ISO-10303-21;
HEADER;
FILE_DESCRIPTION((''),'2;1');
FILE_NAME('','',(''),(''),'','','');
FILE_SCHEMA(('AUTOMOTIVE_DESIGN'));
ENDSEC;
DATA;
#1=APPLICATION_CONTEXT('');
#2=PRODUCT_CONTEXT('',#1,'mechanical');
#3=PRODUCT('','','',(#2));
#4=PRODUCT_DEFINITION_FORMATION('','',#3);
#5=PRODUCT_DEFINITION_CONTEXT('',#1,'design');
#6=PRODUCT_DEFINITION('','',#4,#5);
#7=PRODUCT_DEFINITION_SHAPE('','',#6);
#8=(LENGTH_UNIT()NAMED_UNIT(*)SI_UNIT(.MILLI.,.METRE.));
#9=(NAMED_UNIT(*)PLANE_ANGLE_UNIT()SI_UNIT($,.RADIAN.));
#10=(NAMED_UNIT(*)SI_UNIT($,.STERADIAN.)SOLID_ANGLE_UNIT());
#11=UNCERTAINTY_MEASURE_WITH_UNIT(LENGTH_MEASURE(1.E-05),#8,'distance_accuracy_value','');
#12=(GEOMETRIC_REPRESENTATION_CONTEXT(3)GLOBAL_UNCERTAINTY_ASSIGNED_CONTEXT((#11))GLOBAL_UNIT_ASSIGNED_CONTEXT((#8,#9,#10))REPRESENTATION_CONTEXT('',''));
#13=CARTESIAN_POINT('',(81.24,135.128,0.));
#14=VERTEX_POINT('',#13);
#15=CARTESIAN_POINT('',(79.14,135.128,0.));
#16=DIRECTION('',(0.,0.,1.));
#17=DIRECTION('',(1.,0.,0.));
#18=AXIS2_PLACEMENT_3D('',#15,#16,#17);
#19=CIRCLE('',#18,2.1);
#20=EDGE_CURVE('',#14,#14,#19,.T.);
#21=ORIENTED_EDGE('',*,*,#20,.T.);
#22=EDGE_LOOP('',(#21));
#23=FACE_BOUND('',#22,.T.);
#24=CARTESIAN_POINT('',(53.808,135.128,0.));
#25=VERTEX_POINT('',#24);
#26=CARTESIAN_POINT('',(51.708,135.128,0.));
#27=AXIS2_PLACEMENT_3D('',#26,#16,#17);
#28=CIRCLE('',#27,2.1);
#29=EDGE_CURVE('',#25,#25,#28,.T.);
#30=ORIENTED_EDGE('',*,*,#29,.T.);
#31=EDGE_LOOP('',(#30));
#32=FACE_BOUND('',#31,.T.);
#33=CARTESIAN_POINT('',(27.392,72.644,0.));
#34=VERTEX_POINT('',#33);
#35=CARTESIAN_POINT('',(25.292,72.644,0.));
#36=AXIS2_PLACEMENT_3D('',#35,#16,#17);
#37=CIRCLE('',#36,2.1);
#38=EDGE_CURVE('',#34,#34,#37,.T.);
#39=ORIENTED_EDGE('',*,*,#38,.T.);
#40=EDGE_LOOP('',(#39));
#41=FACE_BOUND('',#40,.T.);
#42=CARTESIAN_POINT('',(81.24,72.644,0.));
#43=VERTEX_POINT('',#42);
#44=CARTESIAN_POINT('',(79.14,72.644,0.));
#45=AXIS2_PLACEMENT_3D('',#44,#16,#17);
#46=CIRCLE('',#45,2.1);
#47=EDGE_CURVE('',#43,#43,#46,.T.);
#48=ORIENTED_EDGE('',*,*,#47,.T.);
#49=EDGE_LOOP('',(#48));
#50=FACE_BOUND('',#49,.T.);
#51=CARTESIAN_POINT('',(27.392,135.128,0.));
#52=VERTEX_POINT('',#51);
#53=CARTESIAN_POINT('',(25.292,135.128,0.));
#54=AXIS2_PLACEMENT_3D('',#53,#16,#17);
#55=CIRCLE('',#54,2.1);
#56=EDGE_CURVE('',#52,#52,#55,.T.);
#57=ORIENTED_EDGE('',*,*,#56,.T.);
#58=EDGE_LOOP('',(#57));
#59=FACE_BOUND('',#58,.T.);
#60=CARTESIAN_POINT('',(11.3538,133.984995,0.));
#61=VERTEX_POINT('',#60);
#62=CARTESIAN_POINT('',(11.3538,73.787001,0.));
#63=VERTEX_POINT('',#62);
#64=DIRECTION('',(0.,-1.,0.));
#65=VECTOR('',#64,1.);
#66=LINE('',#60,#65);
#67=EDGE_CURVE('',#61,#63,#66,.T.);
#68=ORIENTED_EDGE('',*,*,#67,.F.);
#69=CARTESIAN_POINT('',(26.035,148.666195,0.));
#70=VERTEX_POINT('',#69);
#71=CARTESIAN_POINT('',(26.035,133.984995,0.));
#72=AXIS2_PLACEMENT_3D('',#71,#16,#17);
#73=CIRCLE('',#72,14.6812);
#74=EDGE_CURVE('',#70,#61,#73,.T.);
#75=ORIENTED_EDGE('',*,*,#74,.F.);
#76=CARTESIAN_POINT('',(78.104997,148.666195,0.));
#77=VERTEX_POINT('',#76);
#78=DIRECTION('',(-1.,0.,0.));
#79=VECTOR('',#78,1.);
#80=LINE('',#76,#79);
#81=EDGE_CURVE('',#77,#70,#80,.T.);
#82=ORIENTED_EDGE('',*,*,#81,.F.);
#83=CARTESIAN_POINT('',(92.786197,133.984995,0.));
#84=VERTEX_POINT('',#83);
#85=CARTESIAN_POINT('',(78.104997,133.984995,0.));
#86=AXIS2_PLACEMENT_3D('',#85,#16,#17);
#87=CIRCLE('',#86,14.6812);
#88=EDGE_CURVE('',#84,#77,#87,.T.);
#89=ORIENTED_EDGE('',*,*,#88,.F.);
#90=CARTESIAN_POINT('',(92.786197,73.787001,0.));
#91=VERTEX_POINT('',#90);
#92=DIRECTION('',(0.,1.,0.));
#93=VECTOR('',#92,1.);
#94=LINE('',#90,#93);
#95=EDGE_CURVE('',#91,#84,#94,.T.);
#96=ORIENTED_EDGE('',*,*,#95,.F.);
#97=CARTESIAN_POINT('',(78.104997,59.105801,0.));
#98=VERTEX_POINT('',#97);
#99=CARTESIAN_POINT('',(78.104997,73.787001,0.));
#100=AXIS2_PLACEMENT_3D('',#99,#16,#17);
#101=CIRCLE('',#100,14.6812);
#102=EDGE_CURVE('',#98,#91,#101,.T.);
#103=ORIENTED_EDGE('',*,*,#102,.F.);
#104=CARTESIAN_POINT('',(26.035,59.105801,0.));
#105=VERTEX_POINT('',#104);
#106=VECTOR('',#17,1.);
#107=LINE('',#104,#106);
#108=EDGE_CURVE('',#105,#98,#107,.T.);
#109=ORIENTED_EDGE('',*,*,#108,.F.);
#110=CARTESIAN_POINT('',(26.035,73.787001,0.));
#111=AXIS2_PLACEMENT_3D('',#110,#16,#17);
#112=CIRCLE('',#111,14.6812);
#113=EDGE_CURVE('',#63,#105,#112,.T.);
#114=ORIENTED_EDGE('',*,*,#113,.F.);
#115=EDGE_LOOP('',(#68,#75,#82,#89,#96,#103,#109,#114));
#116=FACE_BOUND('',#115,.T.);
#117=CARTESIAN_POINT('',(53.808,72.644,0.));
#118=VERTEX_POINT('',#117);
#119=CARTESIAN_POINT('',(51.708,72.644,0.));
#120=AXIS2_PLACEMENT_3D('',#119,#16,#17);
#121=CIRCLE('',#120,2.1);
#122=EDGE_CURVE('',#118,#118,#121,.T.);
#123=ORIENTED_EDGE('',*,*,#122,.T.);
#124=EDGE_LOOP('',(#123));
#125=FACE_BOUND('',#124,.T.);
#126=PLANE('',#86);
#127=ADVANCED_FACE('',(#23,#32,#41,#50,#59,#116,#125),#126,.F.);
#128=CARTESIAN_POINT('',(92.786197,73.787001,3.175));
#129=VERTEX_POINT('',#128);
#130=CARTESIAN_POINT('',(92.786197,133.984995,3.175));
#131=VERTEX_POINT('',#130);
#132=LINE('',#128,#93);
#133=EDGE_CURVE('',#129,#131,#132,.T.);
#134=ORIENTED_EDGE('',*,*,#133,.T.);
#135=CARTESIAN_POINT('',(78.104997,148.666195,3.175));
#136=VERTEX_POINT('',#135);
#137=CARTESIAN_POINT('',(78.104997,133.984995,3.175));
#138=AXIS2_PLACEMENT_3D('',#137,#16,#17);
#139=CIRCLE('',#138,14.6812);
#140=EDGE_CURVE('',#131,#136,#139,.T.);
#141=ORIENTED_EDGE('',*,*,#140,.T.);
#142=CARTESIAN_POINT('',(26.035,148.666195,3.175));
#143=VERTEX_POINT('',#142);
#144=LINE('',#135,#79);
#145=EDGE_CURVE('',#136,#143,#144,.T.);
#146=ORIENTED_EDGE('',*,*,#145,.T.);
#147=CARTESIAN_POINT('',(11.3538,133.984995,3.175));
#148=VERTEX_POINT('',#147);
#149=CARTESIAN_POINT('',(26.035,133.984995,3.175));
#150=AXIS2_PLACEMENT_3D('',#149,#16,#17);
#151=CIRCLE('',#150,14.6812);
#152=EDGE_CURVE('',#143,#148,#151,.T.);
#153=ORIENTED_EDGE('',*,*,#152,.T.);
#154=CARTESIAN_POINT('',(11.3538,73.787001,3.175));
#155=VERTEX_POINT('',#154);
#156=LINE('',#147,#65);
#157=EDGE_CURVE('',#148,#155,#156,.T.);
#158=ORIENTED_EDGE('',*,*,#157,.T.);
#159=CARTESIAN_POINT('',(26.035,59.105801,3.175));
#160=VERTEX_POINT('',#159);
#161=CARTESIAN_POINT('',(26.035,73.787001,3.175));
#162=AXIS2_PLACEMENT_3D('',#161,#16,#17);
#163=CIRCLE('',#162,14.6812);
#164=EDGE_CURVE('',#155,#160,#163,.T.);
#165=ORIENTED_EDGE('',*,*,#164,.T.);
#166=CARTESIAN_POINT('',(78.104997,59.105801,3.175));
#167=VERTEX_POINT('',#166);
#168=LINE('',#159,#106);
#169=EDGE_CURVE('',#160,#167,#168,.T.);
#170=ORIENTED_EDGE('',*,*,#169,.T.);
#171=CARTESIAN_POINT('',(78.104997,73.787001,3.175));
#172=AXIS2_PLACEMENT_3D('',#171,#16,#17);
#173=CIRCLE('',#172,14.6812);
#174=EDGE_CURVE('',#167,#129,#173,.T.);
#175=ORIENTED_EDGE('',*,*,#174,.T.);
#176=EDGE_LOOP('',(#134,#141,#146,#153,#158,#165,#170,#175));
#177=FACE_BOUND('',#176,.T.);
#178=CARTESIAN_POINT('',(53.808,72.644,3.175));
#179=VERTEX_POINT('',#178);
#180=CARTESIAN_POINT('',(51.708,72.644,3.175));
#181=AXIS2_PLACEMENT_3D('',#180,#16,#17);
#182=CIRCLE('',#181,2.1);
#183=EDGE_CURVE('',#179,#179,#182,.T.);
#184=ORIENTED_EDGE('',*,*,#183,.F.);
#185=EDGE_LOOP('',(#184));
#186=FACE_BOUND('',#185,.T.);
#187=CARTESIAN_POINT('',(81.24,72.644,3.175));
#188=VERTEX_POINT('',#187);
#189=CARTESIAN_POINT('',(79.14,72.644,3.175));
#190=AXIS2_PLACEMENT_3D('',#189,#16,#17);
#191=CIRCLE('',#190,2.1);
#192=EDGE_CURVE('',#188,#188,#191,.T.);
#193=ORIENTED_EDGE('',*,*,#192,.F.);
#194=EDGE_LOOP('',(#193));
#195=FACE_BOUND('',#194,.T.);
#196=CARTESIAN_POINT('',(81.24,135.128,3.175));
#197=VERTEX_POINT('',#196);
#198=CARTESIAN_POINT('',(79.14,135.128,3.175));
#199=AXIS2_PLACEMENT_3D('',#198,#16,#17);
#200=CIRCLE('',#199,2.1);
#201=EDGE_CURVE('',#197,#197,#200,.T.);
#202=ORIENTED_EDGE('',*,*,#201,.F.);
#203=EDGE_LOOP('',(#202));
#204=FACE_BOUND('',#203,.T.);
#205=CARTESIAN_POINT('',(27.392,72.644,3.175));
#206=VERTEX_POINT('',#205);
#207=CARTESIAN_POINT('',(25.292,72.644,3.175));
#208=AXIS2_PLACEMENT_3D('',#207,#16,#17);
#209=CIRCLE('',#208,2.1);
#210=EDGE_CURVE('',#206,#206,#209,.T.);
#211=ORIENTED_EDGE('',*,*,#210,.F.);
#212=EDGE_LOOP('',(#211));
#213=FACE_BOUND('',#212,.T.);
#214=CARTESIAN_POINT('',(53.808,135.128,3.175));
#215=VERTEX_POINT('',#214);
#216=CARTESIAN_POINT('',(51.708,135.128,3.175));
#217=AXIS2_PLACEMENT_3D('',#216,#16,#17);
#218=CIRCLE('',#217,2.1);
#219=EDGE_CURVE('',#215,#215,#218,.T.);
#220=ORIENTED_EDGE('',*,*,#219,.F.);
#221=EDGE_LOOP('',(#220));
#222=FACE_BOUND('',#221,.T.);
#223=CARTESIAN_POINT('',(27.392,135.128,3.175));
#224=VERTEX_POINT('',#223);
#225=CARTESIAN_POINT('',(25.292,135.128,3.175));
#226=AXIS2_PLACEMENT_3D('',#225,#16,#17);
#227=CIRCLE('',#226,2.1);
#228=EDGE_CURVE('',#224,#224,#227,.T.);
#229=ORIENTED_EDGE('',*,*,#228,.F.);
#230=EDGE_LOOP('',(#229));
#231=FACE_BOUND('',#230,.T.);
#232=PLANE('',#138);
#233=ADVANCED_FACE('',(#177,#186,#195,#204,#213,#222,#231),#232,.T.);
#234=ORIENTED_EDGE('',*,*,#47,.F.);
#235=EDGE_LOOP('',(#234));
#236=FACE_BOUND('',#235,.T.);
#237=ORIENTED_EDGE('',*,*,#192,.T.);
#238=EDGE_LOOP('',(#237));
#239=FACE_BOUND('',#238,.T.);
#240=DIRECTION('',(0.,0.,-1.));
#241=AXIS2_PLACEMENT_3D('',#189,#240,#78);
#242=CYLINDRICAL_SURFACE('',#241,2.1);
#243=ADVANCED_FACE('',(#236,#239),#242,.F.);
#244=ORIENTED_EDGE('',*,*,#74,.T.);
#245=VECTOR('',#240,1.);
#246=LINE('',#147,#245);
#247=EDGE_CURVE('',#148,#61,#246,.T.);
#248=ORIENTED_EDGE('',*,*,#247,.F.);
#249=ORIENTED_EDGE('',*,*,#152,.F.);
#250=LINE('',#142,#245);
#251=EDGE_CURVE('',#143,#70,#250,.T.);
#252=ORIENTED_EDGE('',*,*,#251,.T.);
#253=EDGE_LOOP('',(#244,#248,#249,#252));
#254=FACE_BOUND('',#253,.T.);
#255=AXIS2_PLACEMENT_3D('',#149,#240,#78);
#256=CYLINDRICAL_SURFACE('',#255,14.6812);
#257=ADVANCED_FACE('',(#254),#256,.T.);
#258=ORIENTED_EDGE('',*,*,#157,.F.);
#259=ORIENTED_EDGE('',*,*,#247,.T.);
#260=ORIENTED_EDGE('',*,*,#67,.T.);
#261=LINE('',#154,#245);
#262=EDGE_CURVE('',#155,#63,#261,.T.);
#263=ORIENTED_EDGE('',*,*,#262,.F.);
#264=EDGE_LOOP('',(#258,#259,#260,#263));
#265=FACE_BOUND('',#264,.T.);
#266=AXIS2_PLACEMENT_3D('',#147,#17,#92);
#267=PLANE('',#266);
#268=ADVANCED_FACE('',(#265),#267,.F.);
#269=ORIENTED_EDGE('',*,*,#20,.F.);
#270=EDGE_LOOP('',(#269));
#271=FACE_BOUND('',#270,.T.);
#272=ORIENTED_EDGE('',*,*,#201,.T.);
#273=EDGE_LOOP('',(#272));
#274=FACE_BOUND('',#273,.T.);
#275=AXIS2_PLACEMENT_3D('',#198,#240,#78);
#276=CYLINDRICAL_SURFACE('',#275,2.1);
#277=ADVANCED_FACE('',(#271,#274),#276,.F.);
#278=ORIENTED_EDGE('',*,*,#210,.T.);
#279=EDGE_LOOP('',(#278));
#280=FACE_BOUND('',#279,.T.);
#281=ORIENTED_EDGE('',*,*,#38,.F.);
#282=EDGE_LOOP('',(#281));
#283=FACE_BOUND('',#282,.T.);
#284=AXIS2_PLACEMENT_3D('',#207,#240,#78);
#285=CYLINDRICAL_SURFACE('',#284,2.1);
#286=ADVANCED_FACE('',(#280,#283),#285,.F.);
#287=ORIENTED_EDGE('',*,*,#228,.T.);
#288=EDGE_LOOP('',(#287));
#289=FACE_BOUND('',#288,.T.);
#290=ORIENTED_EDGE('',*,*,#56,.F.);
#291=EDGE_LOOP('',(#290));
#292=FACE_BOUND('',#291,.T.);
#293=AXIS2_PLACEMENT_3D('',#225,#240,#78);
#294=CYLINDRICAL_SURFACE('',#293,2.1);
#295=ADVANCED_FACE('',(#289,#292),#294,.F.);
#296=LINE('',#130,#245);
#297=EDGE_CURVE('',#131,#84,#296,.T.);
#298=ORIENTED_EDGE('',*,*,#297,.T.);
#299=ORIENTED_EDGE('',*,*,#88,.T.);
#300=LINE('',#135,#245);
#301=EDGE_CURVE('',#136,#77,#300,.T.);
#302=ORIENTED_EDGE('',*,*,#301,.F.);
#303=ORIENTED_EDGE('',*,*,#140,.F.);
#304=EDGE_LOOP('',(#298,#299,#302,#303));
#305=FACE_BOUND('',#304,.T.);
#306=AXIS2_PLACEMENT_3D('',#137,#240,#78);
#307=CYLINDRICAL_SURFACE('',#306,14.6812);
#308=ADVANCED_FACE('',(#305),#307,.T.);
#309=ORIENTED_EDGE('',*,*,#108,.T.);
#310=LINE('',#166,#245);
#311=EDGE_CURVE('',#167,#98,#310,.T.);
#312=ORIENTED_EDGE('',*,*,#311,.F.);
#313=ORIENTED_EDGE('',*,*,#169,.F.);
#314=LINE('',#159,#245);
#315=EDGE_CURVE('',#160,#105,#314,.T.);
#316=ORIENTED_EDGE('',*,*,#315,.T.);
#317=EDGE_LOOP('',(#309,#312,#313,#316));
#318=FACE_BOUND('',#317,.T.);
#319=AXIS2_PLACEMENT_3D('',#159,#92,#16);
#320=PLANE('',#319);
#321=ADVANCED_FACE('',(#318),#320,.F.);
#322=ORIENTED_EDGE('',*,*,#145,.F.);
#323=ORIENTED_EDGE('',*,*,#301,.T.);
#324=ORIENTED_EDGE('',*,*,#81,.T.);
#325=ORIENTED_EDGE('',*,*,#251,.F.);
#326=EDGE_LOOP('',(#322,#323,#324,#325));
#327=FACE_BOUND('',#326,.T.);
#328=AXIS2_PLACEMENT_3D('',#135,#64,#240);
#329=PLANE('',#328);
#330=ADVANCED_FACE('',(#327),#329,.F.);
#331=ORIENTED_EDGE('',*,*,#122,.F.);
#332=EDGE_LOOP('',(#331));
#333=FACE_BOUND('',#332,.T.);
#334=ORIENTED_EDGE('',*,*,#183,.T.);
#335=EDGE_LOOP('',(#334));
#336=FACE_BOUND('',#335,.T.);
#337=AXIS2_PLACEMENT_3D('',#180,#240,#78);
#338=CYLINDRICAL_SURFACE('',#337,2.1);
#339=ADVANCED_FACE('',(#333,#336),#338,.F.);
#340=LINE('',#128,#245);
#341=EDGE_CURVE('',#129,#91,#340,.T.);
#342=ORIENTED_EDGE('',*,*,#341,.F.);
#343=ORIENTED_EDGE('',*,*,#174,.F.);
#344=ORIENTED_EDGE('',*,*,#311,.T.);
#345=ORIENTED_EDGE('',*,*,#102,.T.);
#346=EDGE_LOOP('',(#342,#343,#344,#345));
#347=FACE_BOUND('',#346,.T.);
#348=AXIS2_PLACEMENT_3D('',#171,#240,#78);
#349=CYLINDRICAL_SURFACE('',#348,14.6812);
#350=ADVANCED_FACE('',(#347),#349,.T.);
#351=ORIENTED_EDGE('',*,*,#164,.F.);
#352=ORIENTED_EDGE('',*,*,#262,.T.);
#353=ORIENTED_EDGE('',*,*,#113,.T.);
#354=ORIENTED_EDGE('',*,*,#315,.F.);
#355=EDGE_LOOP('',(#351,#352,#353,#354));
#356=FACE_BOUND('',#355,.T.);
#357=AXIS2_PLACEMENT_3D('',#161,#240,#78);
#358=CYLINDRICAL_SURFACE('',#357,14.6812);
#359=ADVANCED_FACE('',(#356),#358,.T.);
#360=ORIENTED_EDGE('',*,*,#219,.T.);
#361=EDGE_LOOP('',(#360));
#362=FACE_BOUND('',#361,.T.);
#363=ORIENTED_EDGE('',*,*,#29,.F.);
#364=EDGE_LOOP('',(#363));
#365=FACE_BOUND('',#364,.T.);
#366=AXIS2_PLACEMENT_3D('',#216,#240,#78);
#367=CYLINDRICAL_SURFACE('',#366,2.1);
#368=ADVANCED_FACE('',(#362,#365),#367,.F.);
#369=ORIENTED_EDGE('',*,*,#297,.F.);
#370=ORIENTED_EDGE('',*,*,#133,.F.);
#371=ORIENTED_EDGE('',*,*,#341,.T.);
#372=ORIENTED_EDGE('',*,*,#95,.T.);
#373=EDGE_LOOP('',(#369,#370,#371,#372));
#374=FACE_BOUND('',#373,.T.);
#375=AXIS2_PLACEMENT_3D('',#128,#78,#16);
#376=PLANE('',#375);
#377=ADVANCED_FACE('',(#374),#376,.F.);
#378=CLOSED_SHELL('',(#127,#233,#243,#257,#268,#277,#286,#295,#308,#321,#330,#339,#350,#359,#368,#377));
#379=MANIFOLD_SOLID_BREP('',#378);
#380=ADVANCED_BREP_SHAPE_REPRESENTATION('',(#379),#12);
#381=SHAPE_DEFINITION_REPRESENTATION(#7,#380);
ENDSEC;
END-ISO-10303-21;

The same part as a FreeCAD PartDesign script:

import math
import FreeCAD as App
import Part
import Sketcher

V = App.Vector
Q = App.Units.Quantity

doc = App.newDocument("Part")
body = doc.addObject("PartDesign::Body", "Body")

# Sketch on XY plane
sketch1 = body.newObject("Sketcher::SketchObject", "Sketch")
sketch1.AttachmentSupport = (doc.getObject("XY_Plane"), [""])
sketch1.MapMode = "FlatFace"
sketch1.addGeometry([
    Part.LineSegment(V(11.4, 134, 0), V(11.4, 73.8, 0)),  # 0
    Part.ArcOfCircle(Part.Circle(V(26, 73.8, 0), V(0, 0, 1), 14.7), math.radians(-180), math.radians(-90)),  # 1
    Part.LineSegment(V(26, 59.1, 0), V(78.1, 59.1, 0)),  # 2
    Part.ArcOfCircle(Part.Circle(V(78.1, 73.8, 0), V(0, 0, 1), 14.7), math.radians(-90), math.radians(0)),  # 3
    Part.LineSegment(V(92.8, 73.8, 0), V(92.8, 134, 0)),  # 4
    Part.ArcOfCircle(Part.Circle(V(78.1, 134, 0), V(0, 0, 1), 14.7), math.radians(0), math.radians(90)),  # 5
    Part.LineSegment(V(78.1, 148.7, 0), V(26, 148.7, 0)),  # 6
    Part.ArcOfCircle(Part.Circle(V(26, 134, 0), V(0, 0, 1), 14.7), math.radians(90), math.radians(180)),  # 7
    Part.Circle(V(25.3, 72.6, 0), V(0, 0, 1), 2.1),  # 8
    Part.Circle(V(51.7, 72.6, 0), V(0, 0, 1), 2.1),  # 9
    Part.Circle(V(79.1, 72.6, 0), V(0, 0, 1), 2.1),  # 10
    Part.Circle(V(25.3, 135.1, 0), V(0, 0, 1), 2.1),  # 11
    Part.Circle(V(51.7, 135.1, 0), V(0, 0, 1), 2.1),  # 12
    Part.Circle(V(79.1, 135.1, 0), V(0, 0, 1), 2.1),  # 13
], False)
sketch1.addConstraint([
    Sketcher.Constraint("Tangent", 0, 2, 1, 1),
    Sketcher.Constraint("Tangent", 1, 2, 2, 1),
    Sketcher.Constraint("Tangent", 2, 2, 3, 1),
    Sketcher.Constraint("Tangent", 3, 2, 4, 1),
    Sketcher.Constraint("Tangent", 4, 2, 5, 1),
    Sketcher.Constraint("Tangent", 5, 2, 6, 1),
    Sketcher.Constraint("Tangent", 6, 2, 7, 1),
    Sketcher.Constraint("Tangent", 7, 2, 0, 1),
    Sketcher.Constraint("Vertical", 0),
    Sketcher.Constraint("Horizontal", 2),
    Sketcher.Constraint("Vertical", 4),
    Sketcher.Constraint("Horizontal", 6),
    Sketcher.Constraint("Equal", 1, 3),
    Sketcher.Constraint("Equal", 3, 5),
    Sketcher.Constraint("Equal", 5, 7),
    Sketcher.Constraint("Equal", 8, 9),
    Sketcher.Constraint("Equal", 9, 10),
    Sketcher.Constraint("Equal", 10, 11),
    Sketcher.Constraint("Equal", 11, 12),
    Sketcher.Constraint("Equal", 12, 13),
    Sketcher.Constraint("Horizontal", 8, 3, 9, 3),
    Sketcher.Constraint("Horizontal", 9, 3, 10, 3),
    Sketcher.Constraint("Horizontal", 11, 3, 12, 3),
    Sketcher.Constraint("Horizontal", 12, 3, 13, 3),
    Sketcher.Constraint("Vertical", 8, 3, 11, 3),
    Sketcher.Constraint("Vertical", 9, 3, 12, 3),
    Sketcher.Constraint("Vertical", 10, 3, 13, 3),
    Sketcher.Constraint("Radius", 1, Q("0.578 in")),
    Sketcher.Constraint("DistanceX", 2, 1, 2, 2, Q("2.0499999 in")),
    Sketcher.Constraint("Diameter", 8, Q("4.2 mm")),
    Sketcher.Constraint("DistanceY", -1, 1, 8, 3, Q("2.86 in")),
    Sketcher.Constraint("DistanceY", -1, 1, 11, 3, Q("5.32 in")),
    Sketcher.Constraint("DistanceX", 8, 3, 9, 3, Q("1.04 in")),
    Sketcher.Constraint("DistanceX", 9, 3, 10, 3, Q("1.08 in")),
    Sketcher.Constraint("DistanceX", -1, 1, 1, 3, Q("1.025 in")),
    Sketcher.Constraint("DistanceY", -1, 1, 1, 3, Q("2.905 in")),
    Sketcher.Constraint("DistanceX", -1, 1, 8, 3, Q("25.292 mm")),
    Sketcher.Constraint("DistanceY", 0, 2, 0, 1, Q("60.197994 mm")),
])
pad1 = body.newObject("PartDesign::Pad", "Pad")
pad1.Profile = sketch1
pad1.Length = Q("0.125 in")

doc.recompute()
